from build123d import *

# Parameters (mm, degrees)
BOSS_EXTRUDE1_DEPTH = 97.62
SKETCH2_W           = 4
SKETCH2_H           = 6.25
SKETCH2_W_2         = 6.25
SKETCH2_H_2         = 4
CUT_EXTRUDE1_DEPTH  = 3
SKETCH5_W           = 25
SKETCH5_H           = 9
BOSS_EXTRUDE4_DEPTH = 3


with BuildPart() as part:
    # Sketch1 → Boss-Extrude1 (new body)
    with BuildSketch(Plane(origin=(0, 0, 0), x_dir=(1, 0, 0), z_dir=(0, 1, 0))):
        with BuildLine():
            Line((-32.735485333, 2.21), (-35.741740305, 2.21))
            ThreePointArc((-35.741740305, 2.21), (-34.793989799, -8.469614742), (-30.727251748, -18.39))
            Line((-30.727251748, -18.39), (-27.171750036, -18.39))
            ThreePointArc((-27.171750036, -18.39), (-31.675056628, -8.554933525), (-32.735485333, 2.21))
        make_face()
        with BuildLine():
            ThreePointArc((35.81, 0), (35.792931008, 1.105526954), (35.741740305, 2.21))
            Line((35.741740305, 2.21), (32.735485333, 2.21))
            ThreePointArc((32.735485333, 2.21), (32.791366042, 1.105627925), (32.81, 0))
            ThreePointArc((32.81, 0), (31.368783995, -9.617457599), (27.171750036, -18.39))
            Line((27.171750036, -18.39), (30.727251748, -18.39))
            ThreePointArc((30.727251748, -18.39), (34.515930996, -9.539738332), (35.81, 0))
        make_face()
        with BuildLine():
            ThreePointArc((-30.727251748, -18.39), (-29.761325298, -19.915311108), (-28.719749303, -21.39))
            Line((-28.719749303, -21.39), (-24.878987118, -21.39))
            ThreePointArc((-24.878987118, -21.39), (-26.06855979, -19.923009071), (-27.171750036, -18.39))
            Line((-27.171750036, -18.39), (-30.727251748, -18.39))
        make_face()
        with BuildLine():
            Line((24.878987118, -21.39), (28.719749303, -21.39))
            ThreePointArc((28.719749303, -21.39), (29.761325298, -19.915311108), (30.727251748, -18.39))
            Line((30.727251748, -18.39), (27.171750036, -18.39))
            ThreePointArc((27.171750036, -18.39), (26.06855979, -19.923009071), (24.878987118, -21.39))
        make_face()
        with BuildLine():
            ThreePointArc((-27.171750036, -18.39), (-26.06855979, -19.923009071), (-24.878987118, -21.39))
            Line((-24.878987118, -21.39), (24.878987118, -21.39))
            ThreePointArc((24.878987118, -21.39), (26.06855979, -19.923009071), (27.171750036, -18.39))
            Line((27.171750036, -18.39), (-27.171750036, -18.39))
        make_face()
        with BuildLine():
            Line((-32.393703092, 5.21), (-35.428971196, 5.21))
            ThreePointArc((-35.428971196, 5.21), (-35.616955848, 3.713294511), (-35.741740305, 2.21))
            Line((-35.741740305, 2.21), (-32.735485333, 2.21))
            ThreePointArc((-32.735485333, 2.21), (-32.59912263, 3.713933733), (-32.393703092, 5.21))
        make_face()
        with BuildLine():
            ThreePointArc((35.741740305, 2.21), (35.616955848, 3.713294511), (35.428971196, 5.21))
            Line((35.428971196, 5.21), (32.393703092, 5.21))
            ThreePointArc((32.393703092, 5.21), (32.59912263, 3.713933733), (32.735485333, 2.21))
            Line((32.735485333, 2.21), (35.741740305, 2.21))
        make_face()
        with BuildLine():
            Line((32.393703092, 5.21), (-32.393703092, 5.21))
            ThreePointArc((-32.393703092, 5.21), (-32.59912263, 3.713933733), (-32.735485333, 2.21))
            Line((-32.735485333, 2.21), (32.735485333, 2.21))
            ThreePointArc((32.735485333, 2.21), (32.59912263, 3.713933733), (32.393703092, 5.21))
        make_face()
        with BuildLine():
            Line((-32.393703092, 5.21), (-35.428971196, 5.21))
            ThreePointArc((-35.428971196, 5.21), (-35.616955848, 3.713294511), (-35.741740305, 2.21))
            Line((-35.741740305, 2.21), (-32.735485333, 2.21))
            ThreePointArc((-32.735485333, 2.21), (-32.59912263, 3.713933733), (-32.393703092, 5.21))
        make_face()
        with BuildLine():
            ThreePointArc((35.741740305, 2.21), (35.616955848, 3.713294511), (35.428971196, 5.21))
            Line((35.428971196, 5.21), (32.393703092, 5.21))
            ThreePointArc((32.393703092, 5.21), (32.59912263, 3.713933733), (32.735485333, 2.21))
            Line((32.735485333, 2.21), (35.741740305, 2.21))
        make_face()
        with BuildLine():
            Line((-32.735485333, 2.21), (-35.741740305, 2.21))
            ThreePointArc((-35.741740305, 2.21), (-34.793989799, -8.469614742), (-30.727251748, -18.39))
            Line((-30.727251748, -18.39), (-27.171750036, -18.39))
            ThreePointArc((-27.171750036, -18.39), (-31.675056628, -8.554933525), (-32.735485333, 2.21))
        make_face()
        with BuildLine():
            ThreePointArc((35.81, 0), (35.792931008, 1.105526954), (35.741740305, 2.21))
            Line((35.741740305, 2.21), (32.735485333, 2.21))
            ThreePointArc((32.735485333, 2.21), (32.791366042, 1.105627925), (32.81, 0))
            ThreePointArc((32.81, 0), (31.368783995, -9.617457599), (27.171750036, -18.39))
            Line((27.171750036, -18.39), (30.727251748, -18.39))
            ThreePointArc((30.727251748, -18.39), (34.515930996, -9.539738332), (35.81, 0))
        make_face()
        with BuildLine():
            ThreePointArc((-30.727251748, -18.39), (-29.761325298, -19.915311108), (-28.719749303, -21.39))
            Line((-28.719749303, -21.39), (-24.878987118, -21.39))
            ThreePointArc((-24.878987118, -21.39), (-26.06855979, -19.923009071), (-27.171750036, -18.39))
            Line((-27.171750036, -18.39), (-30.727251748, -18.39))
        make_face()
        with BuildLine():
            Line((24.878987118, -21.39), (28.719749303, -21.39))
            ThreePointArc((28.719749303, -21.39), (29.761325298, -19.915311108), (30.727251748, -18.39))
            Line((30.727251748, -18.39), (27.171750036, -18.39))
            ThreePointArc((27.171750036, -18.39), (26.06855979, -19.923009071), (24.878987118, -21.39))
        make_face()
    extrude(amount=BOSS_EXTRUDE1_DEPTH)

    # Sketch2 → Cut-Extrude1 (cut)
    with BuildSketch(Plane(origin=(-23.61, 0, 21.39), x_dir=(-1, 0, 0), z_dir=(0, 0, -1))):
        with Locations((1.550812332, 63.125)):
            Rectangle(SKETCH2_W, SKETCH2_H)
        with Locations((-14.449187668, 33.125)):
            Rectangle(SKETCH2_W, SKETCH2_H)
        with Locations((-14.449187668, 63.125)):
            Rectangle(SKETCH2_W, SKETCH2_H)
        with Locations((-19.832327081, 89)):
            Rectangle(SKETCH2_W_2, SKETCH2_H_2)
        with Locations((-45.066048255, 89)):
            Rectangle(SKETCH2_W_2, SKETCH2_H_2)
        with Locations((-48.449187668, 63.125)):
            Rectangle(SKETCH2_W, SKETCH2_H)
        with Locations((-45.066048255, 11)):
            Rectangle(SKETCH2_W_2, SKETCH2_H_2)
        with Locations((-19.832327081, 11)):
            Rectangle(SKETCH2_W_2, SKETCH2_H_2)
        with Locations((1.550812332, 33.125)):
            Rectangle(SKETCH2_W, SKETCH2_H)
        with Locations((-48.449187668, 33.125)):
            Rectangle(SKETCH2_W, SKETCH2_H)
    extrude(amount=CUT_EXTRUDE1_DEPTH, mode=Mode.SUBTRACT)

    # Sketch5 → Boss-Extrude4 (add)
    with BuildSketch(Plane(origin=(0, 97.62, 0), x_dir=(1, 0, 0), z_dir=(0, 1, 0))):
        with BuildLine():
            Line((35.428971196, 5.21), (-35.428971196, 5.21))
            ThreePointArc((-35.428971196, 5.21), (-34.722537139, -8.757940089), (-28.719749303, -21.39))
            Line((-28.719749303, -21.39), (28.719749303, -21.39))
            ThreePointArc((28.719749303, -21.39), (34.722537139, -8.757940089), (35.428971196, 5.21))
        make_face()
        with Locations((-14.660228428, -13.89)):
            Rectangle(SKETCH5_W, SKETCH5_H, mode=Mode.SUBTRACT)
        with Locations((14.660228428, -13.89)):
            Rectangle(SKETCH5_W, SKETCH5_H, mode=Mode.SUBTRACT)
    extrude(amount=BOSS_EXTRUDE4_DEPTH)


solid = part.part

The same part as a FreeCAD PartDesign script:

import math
import FreeCAD as App
import Part
import Sketcher


def add_polygon(sketch, points):
    """Adds a closed chain of lines whose ends are joined by coincident constraints."""
    first, n = sketch.GeometryCount, len(points)
    for a, b in zip(points, points[1:] + points[:1]):
        sketch.addGeometry(Part.LineSegment(App.Vector(*a, 0), App.Vector(*b, 0)), False)
    for i in range(n):
        sketch.addConstraint(Sketcher.Constraint("Coincident", first + i, 2, first + (i + 1) % n, 1))

doc = App.newDocument("Part")
body = doc.addObject("PartDesign::Body", "Body")

sketch1 = body.newObject("Sketcher::SketchObject", "Sketch")
sketch1.AttachmentSupport = (doc.getObject("XZ_Plane"), [""])
sketch1.MapMode = "FlatFace"
sketch1.addGeometry([
    Part.ArcOfCircle(Part.Circle(App.Vector(0, 0, 0), App.Vector(0, 0, 1), 35.8), math.radians(30.9), math.radians(36.68)),
    Part.ArcOfCircle(Part.Circle(App.Vector(0, 0, 0), App.Vector(0, 0, 1), 35.8), math.radians(0), math.radians(31)),
    Part.ArcOfCircle(Part.Circle(App.Vector(0, 0, 0), App.Vector(0, 0, 1), 35.8), math.radians(-3.54), math.radians(0)),
    Part.ArcOfCircle(Part.Circle(App.Vector(0, 0, 0), App.Vector(0, 0, 1), 35.8), math.radians(-8.37), math.radians(-3.54)),
    Part.LineSegment(App.Vector(35.4, -5.2, 0), App.Vector(-35.4, -5.2, 0)),
    Part.ArcOfCircle(Part.Circle(App.Vector(0, 0, 0), App.Vector(0, 0, 1), 35.8), math.radians(-176.46), math.radians(-171.63)),
    Part.ArcOfCircle(Part.Circle(App.Vector(0, 0, 0), App.Vector(0, 0, 1), 35.8), math.radians(149), math.radians(184)),
    Part.ArcOfCircle(Part.Circle(App.Vector(0, 0, 0), App.Vector(0, 0, 1), 35.8), math.radians(143.32), math.radians(149.1)),
    Part.LineSegment(App.Vector(-28.7, 21.4, 0), App.Vector(28.7, 21.4, 0)),
    Part.ArcOfCircle(Part.Circle(App.Vector(0, 0, 0), App.Vector(0, 0, 1), 32.8), math.radians(146), math.radians(184)),
    Part.LineSegment(App.Vector(-32.7, -2.2, 0), App.Vector(32.7, -2.2, 0)),
    Part.ArcOfCircle(Part.Circle(App.Vector(0, 0, 0), App.Vector(0, 0, 1), 32.8), math.radians(-3.86), math.radians(0)),
    Part.ArcOfCircle(Part.Circle(App.Vector(0, 0, 0), App.Vector(0, 0, 1), 32.8), math.radians(0), math.radians(34)),
    Part.LineSegment(App.Vector(27.2, 18.4, 0), App.Vector(-27.2, 18.4, 0)),
], False)
sketch1.addConstraint([
    Sketcher.Constraint("Tangent", 0, 1, 1, 2),
    Sketcher.Constraint("Tangent", 1, 1, 2, 2),
    Sketcher.Constraint("Tangent", 2, 1, 3, 2),
    Sketcher.Constraint("Coincident", 3, 1, 4, 1),
    Sketcher.Constraint("Coincident", 4, 2, 5, 2),
    Sketcher.Constraint("Tangent", 5, 1, 6, 2),
    Sketcher.Constraint("Tangent", 6, 1, 7, 2),
    Sketcher.Constraint("Coincident", 7, 1, 8, 1),
    Sketcher.Constraint("Coincident", 8, 2, 0, 2),
    Sketcher.Constraint("Coincident", 9, 2, 10, 1),
    Sketcher.Constraint("Coincident", 10, 2, 11, 1),
    Sketcher.Constraint("Tangent", 11, 2, 12, 1),
    Sketcher.Constraint("Coincident", 12, 2, 13, 1),
    Sketcher.Constraint("Coincident", 13, 2, 9, 1),
    Sketcher.Constraint("Horizontal", 4),
    Sketcher.Constraint("Horizontal", 8),
    Sketcher.Constraint("Horizontal", 10),
    Sketcher.Constraint("Horizontal", 13),
    Sketcher.Constraint("Coincident", 0, 3, -1, 1),
    Sketcher.Constraint("Coincident", 2, 3, -1, 1),
    Sketcher.Constraint("Coincident", 5, 3, -1, 1),
    Sketcher.Constraint("Coincident", 7, 3, -1, 1),
    Sketcher.Constraint("Coincident", 9, 3, -1, 1),
    Sketcher.Constraint("Coincident", 11, 3, -1, 1),
    Sketcher.Constraint("Equal", 2, 3),
    Sketcher.Constraint("Equal", 3, 5),
    Sketcher.Constraint("Equal", 9, 11),
    Sketcher.Constraint("Equal", 11, 12),
    Sketcher.Constraint("PointOnObject", 1, 1, -1),
    Sketcher.Constraint("PointOnObject", 11, 2, -1),
    Sketcher.Constraint("Horizontal", 2, 1, 5, 1),
    Sketcher.Constraint("Horizontal", 0, 1, 6, 1),
    Sketcher.Constraint("Horizontal", 5, 1, 9, 2),
    Sketcher.Constraint("Horizontal", 6, 1, 12, 2),
    Sketcher.Constraint("Radius", 0, 35.81),
    Sketcher.Constraint("Radius", 9, 32.81),
    Sketcher.Constraint("DistanceY", 3, 1, 2, 1, 3.0),
    Sketcher.Constraint("DistanceY", 6, 1, 7, 1, 3.0),
    Sketcher.Constraint("DistanceY", 2, 1, 0, 1, 20.6),
    Sketcher.Constraint("DistanceY", -1, 1, 0, 1, 18.39),
])
pad1 = body.newObject("PartDesign::Pad", "Pad")
pad1.Profile = sketch1
pad1.Length = 97.62
pad1.Reversed = True

sketch2 = body.newObject("Sketcher::SketchObject", "Sketch001")
sketch2.AttachmentSupport = (doc.getObject("XY_Plane"), [""])
sketch2.MapMode = "FlatFace"
sketch2.AttachmentOffset = App.Placement(App.Vector(0, 0, 21.39), App.Rotation())
add_polygon(sketch2, [(-23.2, 66.2), (-23.2, 60), (-27.2, 60), (-27.2, 66.2)])
add_polygon(sketch2, [(-7.2, 36.2), (-7.2, 30), (-11.2, 30), (-11.2, 36.2)])
add_polygon(sketch2, [(-7.2, 66.2), (-7.2, 60), (-11.2, 60), (-11.2, 66.2)])
add_polygon(sketch2, [(-0.7, 91), (-0.7, 87), (-6.9, 87), (-6.9, 91)])
add_polygon(sketch2, [(24.6, 91), (24.6, 87), (18.3, 87), (18.3, 91)])
add_polygon(sketch2, [(26.8, 66.2), (26.8, 60), (22.8, 60), (22.8, 66.2)])
add_polygon(sketch2, [(24.6, 13), (24.6, 9), (18.3, 9), (18.3, 13)])
add_polygon(sketch2, [(-0.7, 13), (-0.7, 9), (-6.9, 9), (-6.9, 13)])
add_polygon(sketch2, [(-23.2, 36.2), (-23.2, 30), (-27.2, 30), (-27.2, 36.2)])
add_polygon(sketch2, [(26.8, 36.2), (26.8, 30), (22.8, 30), (22.8, 36.2)])
sketch2.addConstraint([
    Sketcher.Constraint("Vertical", 0),
    Sketcher.Constraint("Horizontal", 1),
    Sketcher.Constraint("Vertical", 2),
    Sketcher.Constraint("Horizontal", 3),
    Sketcher.Constraint("Vertical", 4),
    Sketcher.Constraint("Horizontal", 5),
    Sketcher.Constraint("Vertical", 6),
    Sketcher.Constraint("Horizontal", 7),
    Sketcher.Constraint("Vertical", 8),
    Sketcher.Constraint("Horizontal", 9),
    Sketcher.Constraint("Vertical", 10),
    Sketcher.Constraint("Horizontal", 11),
    Sketcher.Constraint("Vertical", 12),
    Sketcher.Constraint("Horizontal", 13),
    Sketcher.Constraint("Vertical", 14),
    Sketcher.Constraint("Horizontal", 15),
    Sketcher.Constraint("Vertical", 16),
    Sketcher.Constraint("Horizontal", 17),
    Sketcher.Constraint("Vertical", 18),
    Sketcher.Constraint("Horizontal", 19),
    Sketcher.Constraint("Vertical", 20),
    Sketcher.Constraint("Horizontal", 21),
    Sketcher.Constraint("Vertical", 22),
    Sketcher.Constraint("Horizontal", 23),
    Sketcher.Constraint("Vertical", 24),
    Sketcher.Constraint("Horizontal", 25),
    Sketcher.Constraint("Vertical", 26),
    Sketcher.Constraint("Horizontal", 27),
    Sketcher.Constraint("Vertical", 28),
    Sketcher.Constraint("Horizontal", 29),
    Sketcher.Constraint("Vertical", 30),
    Sketcher.Constraint("Horizontal", 31),
    Sketcher.Constraint("Vertical", 32),
    Sketcher.Constraint("Horizontal", 33),
    Sketcher.Constraint("Vertical", 34),
    Sketcher.Constraint("Horizontal", 35),
    Sketcher.Constraint("Vertical", 36),
    Sketcher.Constraint("Horizontal", 37),
    Sketcher.Constraint("Vertical", 38),
    Sketcher.Constraint("Horizontal", 39),
    Sketcher.Constraint("Horizontal", 1, 2, 8, 2),
    Sketcher.Constraint("Horizontal", 3, 2, 10, 2),
    Sketcher.Constraint("Horizontal", 13, 2, 16, 2),
    Sketcher.Constraint("Horizontal", 15, 2, 18, 2),
    Sketcher.Constraint("Horizontal", 9, 2, 20, 2),
    Sketcher.Constraint("Horizontal", 11, 2, 22, 2),
    Sketcher.Constraint("Horizontal", 25, 2, 28, 2),
    Sketcher.Constraint("Horizontal", 27, 2, 30, 2),
    Sketcher.Constraint("Horizontal", 5, 2, 32, 2),
    Sketcher.Constraint("Horizontal", 7, 2, 34, 2),
    Sketcher.Constraint("Horizontal", 33, 2, 36, 2),
    Sketcher.Constraint("Horizontal", 35, 2, 38, 2),
    Sketcher.Constraint("Vertical", 7, 2, 8, 2),
    Sketcher.Constraint("Vertical", 6, 2, 9, 2),
    Sketcher.Constraint("Vertical", 19, 2, 24, 2),
    Sketcher.Constraint("Vertical", 18, 2, 25, 2),
    Sketcher.Constraint("Vertical", 15, 2, 28, 2),
    Sketcher.Constraint("Vertical", 14, 2, 29, 2),
    Sketcher.Constraint("Vertical", 3, 2, 32, 2),
    Sketcher.Constraint("Vertical", 2, 2, 33, 2),
    Sketcher.Constraint("Vertical", 23, 2, 36, 2),
    Sketcher.Constraint("Vertical", 22, 2, 37, 2),
    Sketcher.Constraint("Equal", 3, 5),
    Sketcher.Constraint("Equal", 15, 17),
    Sketcher.Constraint("Equal", 11, 21),
    Sketcher.Constraint("Equal", 31, 0),
    Sketcher.Constraint("Equal", 2, 4),
    Sketcher.Constraint("Equal", 39, 12),
    Sketcher.Constraint("Equal", 18, 24),
    Sketcher.Constraint("DistanceX", 1, 2, 1, 1, 4.0),
    Sketcher.Constraint("DistanceY", -1, 1, 0, 2, 60.0),
    Sketcher.Constraint("DistanceY", -1, 1, 4, 2, 30.0),
    Sketcher.Constraint("DistanceY", -1, 1, 12, 2, 87.0),
    Sketcher.Constraint("DistanceY", -1, 1, 24, 2, 9.0),
    Sketcher.Constraint("DistanceX", 0, 2, 4, 2, 16.0),
    Sketcher.Constraint("DistanceX", 8, 2, 20, 2, 34.0),
    Sketcher.Constraint("DistanceX", 13, 2, 13, 1, 6.25),
    Sketcher.Constraint("DistanceX", -1, 1, 16, 2, 24.581048),
    Sketcher.Constraint("DistanceX", 11, 2, 12, 2, 6.508139),
    Sketcher.Constraint("DistanceX", 12, 2, 16, 2, 25.233721),
])
pocket1 = body.newObject("PartDesign::Pocket", "Pocket")
pocket1.Profile = sketch2
pocket1.Length = 3

sketch3 = body.newObject("Sketcher::SketchObject", "Sketch002")
sketch3.AttachmentSupport = (doc.getObject("XZ_Plane"), [""])
sketch3.MapMode = "FlatFace"
sketch3.AttachmentOffset = App.Placement(App.Vector(0, 0, -97.62), App.Rotation())
sketch3.addGeometry(Part.LineSegment(App.Vector(35, -5, 0), App.Vector(-35, -5, 0)), False)
sketch3.addGeometry(Part.ArcOfCircle(Part.Circle(App.Vector(0, 0, 0), App.Vector(0, 0, 1), 36), math.radians(143), math.radians(188)), False)
sketch3.addGeometry(Part.LineSegment(App.Vector(-29, 21, 0), App.Vector(29, 21, 0)), False)
sketch3.addGeometry(Part.ArcOfCircle(Part.Circle(App.Vector(0, 0, 0), App.Vector(0, 0, 1), 36), math.radians(-8), math.radians(37)), False)
add_polygon(sketch3, [(-2, 18), (-27, 18), (-27, 9), (-2, 9)])
add_polygon(sketch3, [(27, 18), (2, 18), (2, 9), (27, 9)])
sketch3.addConstraint([
    Sketcher.Constraint("Coincident", 0, 2, 1, 2),
    Sketcher.Constraint("Coincident", 1, 1, 2, 1),
    Sketcher.Constraint("Coincident", 2, 2, 3, 2),
    Sketcher.Constraint("Coincident", 3, 1, 0, 1),
    Sketcher.Constraint("Horizontal", 0),
    Sketcher.Constraint("Horizontal", 2),
    Sketcher.Constraint("Horizontal", 4),
    Sketcher.Constraint("Vertical", 5),
    Sketcher.Constraint("Horizontal", 6),
    Sketcher.Constraint("Vertical", 7),
    Sketcher.Constraint("Horizontal", 8),
    Sketcher.Constraint("Vertical", 9),
    Sketcher.Constraint("Horizontal", 10),
    Sketcher.Constraint("Vertical", 11),
    Sketcher.Constraint("Coincident", 1, 3, -1, 1),
    Sketcher.Constraint("Coincident", 3, 3, -1, 1),
    Sketcher.Constraint("Equal", 1, 3),
    Sketcher.Constraint("Symmetric", 7, 2, 8, 2, -2),
    Sketcher.Constraint("Symmetric", 5, 2, 10, 2, -2),
    Sketcher.Constraint("DistanceX", 4, 2, 4, 1, 25.0),
    Sketcher.Constraint("DistanceY", 5, 2, 5, 1, 9.0),
    Sketcher.Constraint("Radius", 1, 35.81),
    Sketcher.Constraint("DistanceY", 4, 2, 1, 1, 3.0),
    Sketcher.Constraint("DistanceY", 0, 2, 1, 1, 26.6),
    Sketcher.Constraint("DistanceY", 0, 2, -1, 1, 5.21),
    Sketcher.Constraint("DistanceX", 4, 2, -1, 1, 27.160228),
])
pad2 = body.newObject("PartDesign::Pad", "Pad001")
pad2.Profile = sketch3
pad2.Length = 3
pad2.Reversed = True

doc.recompute()
